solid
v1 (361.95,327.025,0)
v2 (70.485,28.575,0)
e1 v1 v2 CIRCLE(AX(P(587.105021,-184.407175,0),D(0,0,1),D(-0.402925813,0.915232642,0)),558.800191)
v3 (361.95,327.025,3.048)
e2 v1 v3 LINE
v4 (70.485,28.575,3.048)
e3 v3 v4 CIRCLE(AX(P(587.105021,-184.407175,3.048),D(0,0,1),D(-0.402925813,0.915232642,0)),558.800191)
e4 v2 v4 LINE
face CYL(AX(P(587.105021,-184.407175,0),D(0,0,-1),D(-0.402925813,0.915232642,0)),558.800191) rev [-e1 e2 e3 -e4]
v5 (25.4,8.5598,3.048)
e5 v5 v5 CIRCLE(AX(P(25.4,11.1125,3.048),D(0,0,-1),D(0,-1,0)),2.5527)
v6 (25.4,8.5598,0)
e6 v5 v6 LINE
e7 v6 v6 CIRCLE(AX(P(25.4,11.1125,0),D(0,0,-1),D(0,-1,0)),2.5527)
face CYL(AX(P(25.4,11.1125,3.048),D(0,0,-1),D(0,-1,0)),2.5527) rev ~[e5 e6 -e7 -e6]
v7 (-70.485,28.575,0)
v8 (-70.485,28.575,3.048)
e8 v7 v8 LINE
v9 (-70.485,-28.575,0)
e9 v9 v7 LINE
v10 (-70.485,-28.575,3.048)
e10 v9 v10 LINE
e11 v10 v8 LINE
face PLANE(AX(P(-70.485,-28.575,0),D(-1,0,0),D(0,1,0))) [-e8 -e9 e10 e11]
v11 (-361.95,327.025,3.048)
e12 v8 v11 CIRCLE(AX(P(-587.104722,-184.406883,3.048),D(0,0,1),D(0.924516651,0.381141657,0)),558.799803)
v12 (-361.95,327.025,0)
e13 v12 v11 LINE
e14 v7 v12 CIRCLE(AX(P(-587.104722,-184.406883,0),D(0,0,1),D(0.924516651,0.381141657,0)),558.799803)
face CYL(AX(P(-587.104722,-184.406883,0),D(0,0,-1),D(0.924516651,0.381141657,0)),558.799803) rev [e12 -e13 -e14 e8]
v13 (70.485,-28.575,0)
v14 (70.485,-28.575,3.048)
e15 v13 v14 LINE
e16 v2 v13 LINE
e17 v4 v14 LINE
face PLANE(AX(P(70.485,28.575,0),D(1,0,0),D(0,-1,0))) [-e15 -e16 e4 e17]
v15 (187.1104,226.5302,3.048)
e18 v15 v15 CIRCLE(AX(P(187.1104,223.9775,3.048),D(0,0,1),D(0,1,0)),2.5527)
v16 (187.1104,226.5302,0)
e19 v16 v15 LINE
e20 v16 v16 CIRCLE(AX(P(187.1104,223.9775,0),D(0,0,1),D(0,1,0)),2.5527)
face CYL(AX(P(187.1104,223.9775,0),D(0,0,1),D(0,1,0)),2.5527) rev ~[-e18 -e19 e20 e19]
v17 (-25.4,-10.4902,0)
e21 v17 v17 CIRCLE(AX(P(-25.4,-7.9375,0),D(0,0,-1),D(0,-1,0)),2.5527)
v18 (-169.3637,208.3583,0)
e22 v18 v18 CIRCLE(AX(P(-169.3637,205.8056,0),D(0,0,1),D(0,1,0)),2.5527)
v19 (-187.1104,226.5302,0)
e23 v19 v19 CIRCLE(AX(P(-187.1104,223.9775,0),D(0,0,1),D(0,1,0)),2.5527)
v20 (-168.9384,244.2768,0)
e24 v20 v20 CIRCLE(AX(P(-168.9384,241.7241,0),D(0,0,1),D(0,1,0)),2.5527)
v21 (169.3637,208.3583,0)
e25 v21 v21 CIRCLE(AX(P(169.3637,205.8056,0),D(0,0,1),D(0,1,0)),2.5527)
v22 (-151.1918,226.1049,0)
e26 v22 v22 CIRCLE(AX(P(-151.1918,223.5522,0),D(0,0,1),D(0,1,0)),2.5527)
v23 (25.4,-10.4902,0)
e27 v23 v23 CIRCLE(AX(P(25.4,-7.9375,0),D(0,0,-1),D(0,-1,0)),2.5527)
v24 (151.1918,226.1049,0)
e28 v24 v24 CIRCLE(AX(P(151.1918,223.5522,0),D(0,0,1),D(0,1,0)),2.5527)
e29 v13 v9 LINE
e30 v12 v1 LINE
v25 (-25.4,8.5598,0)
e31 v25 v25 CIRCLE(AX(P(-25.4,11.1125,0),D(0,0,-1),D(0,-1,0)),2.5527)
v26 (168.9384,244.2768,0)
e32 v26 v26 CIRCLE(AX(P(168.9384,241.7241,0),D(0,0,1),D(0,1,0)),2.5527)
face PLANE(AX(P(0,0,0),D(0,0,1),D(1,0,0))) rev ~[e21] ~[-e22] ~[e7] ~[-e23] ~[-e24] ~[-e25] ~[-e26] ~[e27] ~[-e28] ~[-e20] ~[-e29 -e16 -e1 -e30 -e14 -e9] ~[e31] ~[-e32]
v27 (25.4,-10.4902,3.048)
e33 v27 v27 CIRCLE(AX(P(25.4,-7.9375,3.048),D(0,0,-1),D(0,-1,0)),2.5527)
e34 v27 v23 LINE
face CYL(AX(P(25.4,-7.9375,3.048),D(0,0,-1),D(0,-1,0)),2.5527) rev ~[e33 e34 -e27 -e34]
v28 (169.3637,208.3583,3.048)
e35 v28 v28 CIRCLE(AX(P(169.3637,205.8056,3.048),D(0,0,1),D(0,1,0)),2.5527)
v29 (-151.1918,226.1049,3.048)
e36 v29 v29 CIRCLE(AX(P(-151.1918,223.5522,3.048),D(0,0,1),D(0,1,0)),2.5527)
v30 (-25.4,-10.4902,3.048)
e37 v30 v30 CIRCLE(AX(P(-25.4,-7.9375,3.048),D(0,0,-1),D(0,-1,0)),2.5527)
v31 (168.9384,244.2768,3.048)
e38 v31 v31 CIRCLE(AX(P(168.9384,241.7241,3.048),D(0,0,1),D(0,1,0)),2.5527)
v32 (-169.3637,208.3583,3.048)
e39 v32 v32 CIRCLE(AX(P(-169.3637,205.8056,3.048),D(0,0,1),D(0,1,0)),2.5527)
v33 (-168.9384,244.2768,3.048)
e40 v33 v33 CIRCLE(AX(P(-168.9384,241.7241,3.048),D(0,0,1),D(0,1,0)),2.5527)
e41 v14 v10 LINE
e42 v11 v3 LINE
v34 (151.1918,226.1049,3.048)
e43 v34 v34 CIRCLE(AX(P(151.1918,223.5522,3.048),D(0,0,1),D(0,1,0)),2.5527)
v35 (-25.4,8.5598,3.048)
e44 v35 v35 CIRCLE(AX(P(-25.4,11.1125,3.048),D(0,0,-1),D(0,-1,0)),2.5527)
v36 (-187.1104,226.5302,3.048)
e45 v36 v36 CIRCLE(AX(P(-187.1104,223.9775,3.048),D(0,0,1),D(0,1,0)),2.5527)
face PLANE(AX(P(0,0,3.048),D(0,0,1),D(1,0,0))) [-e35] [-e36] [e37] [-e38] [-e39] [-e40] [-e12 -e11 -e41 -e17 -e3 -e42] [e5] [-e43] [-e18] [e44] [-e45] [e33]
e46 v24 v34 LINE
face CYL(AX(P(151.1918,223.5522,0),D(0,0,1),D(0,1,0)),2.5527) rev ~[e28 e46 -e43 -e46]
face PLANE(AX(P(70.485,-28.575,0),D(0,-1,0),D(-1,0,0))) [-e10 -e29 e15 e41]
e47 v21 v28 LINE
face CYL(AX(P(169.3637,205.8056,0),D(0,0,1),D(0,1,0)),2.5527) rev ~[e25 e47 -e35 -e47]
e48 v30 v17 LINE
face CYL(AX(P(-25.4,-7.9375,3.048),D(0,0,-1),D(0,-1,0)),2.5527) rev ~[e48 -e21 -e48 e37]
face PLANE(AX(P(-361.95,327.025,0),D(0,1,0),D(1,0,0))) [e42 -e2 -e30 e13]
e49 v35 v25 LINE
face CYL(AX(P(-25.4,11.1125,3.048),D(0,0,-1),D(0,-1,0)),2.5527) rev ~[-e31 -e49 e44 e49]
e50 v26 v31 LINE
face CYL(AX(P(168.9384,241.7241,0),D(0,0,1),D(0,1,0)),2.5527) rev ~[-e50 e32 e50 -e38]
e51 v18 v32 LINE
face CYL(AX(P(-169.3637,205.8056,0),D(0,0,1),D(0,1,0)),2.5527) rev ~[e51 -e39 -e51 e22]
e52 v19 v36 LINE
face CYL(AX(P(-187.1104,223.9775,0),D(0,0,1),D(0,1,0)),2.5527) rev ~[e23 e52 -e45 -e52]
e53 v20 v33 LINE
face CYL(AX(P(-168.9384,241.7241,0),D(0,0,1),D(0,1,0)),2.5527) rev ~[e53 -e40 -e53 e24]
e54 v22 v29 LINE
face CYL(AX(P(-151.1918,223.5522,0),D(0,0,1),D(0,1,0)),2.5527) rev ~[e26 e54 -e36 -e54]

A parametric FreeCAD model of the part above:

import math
import FreeCAD as App
import Part
import Sketcher
from FreeCAD import Vector
Q = App.Units.Quantity

doc = App.newDocument("Part")
body = doc.addObject("PartDesign::Body", "Body")

# Sketch on XY plane
sketch1 = doc.addObject("Sketcher::SketchObject", "Sketch")
body.addObject(sketch1)
sketch1.AttachmentSupport = (doc.XY_Plane, [""])
sketch1.MapMode = "FlatFace"
sketch1.addGeometry([
    Part.LineSegment(Vector(-70, -29, 0), Vector(70, -29, 0)),  # 0
    Part.LineSegment(Vector(70, -29, 0), Vector(70, 29, 0)),  # 1
    Part.ArcOfCircle(Part.Circle(Vector(587, -184, 0), Vector(0, 0, 1), 559), math.radians(114), math.radians(158)),  # 2
    Part.LineSegment(Vector(362, 327, 0), Vector(-362, 327, 0)),  # 3
    Part.ArcOfCircle(Part.Circle(Vector(-587, -184, 0), Vector(0, 0, 1), 559), math.radians(22), math.radians(66)),  # 4
    Part.LineSegment(Vector(-70, 29, 0), Vector(-70, -29, 0)),  # 5
], False)
sketch1.addConstraint([
    Sketcher.Constraint("Coincident", 0, 2, 1, 1),
    Sketcher.Constraint("Coincident", 1, 2, 2, 2),
    Sketcher.Constraint("Coincident", 2, 1, 3, 1),
    Sketcher.Constraint("Coincident", 3, 2, 4, 2),
    Sketcher.Constraint("Coincident", 4, 1, 5, 1),
    Sketcher.Constraint("Coincident", 5, 2, 0, 1),
    Sketcher.Constraint("Horizontal", 0),
    Sketcher.Constraint("Vertical", 1),
    Sketcher.Constraint("Horizontal", 3),
    Sketcher.Constraint("Vertical", 5),
    Sketcher.Constraint("Equal", 2, 4),
    Sketcher.Constraint("Symmetric", 0, 2, 4, 1, -1, 1),
    Sketcher.Constraint("Symmetric", 2, 3, 4, 3, -2),
    Sketcher.Constraint("Radius", 2, Q("22 in")),
    Sketcher.Constraint("DistanceX", 3, 2, 3, 1, Q("28.5 in")),
    Sketcher.Constraint("DistanceY", 0, 2, 2, 1, Q("14 in")),
    Sketcher.Constraint("DistanceX", 0, 1, 0, 2, Q("5.55 in")),
    Sketcher.Constraint("DistanceY", 1, 1, 1, 2, Q("2.25 in")),
])
pad1 = doc.addObject("PartDesign::Pad", "Pad")
body.addObject(pad1)
pad1.Profile = sketch1
pad1.Length = Q("0.12 in")

# Sketch on XY plane
sketch2 = doc.addObject("Sketcher::SketchObject", "Sketch001")
body.addObject(sketch2)
sketch2.AttachmentSupport = (doc.XY_Plane, [""])
sketch2.MapMode = "FlatFace"
sketch2.AttachmentOffset = App.Placement(Vector(0, 0, 0.12 * 25.4), App.Rotation())
sketch2.addGeometry([
    Part.Circle(Vector(-25.4, -7.9, 0), Vector(0, 0, 1), 2.6),
    Part.Circle(Vector(25.4, -7.9, 0), Vector(0, 0, 1), 2.6),
    Part.Circle(Vector(-25.4, 11.1, 0), Vector(0, 0, 1), 2.6),
    Part.Circle(Vector(25.4, 11.1, 0), Vector(0, 0, 1), 2.6),
], False)
sketch2.addConstraint([
    Sketcher.Constraint("Equal", 0, 1),
    Sketcher.Constraint("Equal", 1, 2),
    Sketcher.Constraint("Equal", 2, 3),
    Sketcher.Constraint("Symmetric", 0, 3, 1, 3, -2),
    Sketcher.Constraint("Symmetric", 2, 3, 3, 3, -2),
    Sketcher.Constraint("Vertical", 0, 3, 2, 3),
    Sketcher.Constraint("Diameter", 0, Q("0.201 in")),
    Sketcher.Constraint("DistanceX", 0, 3, -1, 1, Q("1 in")),
    Sketcher.Constraint("DistanceY", 0, 3, 2, 3, Q("0.75 in")),
    Sketcher.Constraint("DistanceY", 0, 3, -1, 1, Q("0.3125 in")),
])
doc.recompute()
hole = doc.addObject("PartDesign::Hole", "Hole")
body.addObject(hole)
hole.Profile = sketch2
hole.ThreadType = "None"
hole.Diameter = Q("0.201 in")
hole.DepthType = "Dimension"
hole.Depth = Q("0.12 in")
hole.DrillPoint = "Angled"
hole.DrillPointAngle = 118

# Sketch on XY plane
sketch3 = doc.addObject("Sketcher::SketchObject", "Sketch002")
body.addObject(sketch3)
sketch3.AttachmentSupport = (doc.XY_Plane, [""])
sketch3.MapMode = "FlatFace"
sketch3.addGeometry([
    Part.Circle(Vector(-169.4, 205.8, 0), Vector(0, 0, 1), 2.6),  # 0
    Part.Circle(Vector(-187.1, 224, 0), Vector(0, 0, 1), 2.6),  # 1
    Part.Circle(Vector(-151.2, 223.6, 0), Vector(0, 0, 1), 2.6),  # 2
    Part.Circle(Vector(-168.9, 241.7, 0), Vector(0, 0, 1), 2.6),  # 3
    Part.Circle(Vector(151.2, 223.6, 0), Vector(0, 0, 1), 2.6),  # 4
    Part.Circle(Vector(169.4, 205.8, 0), Vector(0, 0, 1), 2.6),  # 5
    Part.Circle(Vector(187.1, 224, 0), Vector(0, 0, 1), 2.6),  # 6
    Part.Circle(Vector(168.9, 241.7, 0), Vector(0, 0, 1), 2.6),  # 7
], False)
sketch3.addConstraint([
    Sketcher.Constraint("Equal", 0, 1),
    Sketcher.Constraint("Equal", 1, 2),
    Sketcher.Constraint("Equal", 2, 3),
    Sketcher.Constraint("Equal", 3, 4),
    Sketcher.Constraint("Equal", 4, 5),
    Sketcher.Constraint("Equal", 5, 6),
    Sketcher.Constraint("Equal", 6, 7),
    Sketcher.Constraint("Symmetric", 2, 3, 4, 3, -2),
    Sketcher.Constraint("Symmetric", 0, 3, 5, 3, -2),
    Sketcher.Constraint("Symmetric", 1, 3, 6, 3, -2),
    Sketcher.Constraint("Symmetric", 3, 3, 7, 3, -2),
    Sketcher.Constraint("Diameter", 0, Q("0.201 in")),
    Sketcher.Constraint("DistanceY", -1, 1, 1, 3, Q("8.818 in")),
    Sketcher.Constraint("DistanceY", -1, 1, 3, 3, Q("9.5167 in")),
    Sketcher.Constraint("DistanceX", 1, 3, 0, 3, Q("0.6987 in")),
    Sketcher.Constraint("DistanceX", 0, 3, 4, 3, Q("12.6203 in")),
    Sketcher.Constraint("DistanceX", 0, 3, -1, 1, 169.3637),
    Sketcher.Constraint("DistanceY", -1, 1, 0, 3, 205.8056),
    Sketcher.Constraint("DistanceY", -1, 1, 2, 3, 223.5522),
    Sketcher.Constraint("DistanceX", 3, 3, -1, 1, 168.9384),
])
doc.recompute()
hole2 = doc.addObject("PartDesign::Hole", "Hole001")
body.addObject(hole2)
hole2.Profile = sketch3
hole2.ThreadType = "None"
hole2.Diameter = Q("0.201 in")
hole2.DepthType = "Dimension"
hole2.Depth = Q("0.12 in")
hole2.DrillPoint = "Angled"
hole2.DrillPointAngle = 118
hole2.Reversed = True

doc.recompute()
